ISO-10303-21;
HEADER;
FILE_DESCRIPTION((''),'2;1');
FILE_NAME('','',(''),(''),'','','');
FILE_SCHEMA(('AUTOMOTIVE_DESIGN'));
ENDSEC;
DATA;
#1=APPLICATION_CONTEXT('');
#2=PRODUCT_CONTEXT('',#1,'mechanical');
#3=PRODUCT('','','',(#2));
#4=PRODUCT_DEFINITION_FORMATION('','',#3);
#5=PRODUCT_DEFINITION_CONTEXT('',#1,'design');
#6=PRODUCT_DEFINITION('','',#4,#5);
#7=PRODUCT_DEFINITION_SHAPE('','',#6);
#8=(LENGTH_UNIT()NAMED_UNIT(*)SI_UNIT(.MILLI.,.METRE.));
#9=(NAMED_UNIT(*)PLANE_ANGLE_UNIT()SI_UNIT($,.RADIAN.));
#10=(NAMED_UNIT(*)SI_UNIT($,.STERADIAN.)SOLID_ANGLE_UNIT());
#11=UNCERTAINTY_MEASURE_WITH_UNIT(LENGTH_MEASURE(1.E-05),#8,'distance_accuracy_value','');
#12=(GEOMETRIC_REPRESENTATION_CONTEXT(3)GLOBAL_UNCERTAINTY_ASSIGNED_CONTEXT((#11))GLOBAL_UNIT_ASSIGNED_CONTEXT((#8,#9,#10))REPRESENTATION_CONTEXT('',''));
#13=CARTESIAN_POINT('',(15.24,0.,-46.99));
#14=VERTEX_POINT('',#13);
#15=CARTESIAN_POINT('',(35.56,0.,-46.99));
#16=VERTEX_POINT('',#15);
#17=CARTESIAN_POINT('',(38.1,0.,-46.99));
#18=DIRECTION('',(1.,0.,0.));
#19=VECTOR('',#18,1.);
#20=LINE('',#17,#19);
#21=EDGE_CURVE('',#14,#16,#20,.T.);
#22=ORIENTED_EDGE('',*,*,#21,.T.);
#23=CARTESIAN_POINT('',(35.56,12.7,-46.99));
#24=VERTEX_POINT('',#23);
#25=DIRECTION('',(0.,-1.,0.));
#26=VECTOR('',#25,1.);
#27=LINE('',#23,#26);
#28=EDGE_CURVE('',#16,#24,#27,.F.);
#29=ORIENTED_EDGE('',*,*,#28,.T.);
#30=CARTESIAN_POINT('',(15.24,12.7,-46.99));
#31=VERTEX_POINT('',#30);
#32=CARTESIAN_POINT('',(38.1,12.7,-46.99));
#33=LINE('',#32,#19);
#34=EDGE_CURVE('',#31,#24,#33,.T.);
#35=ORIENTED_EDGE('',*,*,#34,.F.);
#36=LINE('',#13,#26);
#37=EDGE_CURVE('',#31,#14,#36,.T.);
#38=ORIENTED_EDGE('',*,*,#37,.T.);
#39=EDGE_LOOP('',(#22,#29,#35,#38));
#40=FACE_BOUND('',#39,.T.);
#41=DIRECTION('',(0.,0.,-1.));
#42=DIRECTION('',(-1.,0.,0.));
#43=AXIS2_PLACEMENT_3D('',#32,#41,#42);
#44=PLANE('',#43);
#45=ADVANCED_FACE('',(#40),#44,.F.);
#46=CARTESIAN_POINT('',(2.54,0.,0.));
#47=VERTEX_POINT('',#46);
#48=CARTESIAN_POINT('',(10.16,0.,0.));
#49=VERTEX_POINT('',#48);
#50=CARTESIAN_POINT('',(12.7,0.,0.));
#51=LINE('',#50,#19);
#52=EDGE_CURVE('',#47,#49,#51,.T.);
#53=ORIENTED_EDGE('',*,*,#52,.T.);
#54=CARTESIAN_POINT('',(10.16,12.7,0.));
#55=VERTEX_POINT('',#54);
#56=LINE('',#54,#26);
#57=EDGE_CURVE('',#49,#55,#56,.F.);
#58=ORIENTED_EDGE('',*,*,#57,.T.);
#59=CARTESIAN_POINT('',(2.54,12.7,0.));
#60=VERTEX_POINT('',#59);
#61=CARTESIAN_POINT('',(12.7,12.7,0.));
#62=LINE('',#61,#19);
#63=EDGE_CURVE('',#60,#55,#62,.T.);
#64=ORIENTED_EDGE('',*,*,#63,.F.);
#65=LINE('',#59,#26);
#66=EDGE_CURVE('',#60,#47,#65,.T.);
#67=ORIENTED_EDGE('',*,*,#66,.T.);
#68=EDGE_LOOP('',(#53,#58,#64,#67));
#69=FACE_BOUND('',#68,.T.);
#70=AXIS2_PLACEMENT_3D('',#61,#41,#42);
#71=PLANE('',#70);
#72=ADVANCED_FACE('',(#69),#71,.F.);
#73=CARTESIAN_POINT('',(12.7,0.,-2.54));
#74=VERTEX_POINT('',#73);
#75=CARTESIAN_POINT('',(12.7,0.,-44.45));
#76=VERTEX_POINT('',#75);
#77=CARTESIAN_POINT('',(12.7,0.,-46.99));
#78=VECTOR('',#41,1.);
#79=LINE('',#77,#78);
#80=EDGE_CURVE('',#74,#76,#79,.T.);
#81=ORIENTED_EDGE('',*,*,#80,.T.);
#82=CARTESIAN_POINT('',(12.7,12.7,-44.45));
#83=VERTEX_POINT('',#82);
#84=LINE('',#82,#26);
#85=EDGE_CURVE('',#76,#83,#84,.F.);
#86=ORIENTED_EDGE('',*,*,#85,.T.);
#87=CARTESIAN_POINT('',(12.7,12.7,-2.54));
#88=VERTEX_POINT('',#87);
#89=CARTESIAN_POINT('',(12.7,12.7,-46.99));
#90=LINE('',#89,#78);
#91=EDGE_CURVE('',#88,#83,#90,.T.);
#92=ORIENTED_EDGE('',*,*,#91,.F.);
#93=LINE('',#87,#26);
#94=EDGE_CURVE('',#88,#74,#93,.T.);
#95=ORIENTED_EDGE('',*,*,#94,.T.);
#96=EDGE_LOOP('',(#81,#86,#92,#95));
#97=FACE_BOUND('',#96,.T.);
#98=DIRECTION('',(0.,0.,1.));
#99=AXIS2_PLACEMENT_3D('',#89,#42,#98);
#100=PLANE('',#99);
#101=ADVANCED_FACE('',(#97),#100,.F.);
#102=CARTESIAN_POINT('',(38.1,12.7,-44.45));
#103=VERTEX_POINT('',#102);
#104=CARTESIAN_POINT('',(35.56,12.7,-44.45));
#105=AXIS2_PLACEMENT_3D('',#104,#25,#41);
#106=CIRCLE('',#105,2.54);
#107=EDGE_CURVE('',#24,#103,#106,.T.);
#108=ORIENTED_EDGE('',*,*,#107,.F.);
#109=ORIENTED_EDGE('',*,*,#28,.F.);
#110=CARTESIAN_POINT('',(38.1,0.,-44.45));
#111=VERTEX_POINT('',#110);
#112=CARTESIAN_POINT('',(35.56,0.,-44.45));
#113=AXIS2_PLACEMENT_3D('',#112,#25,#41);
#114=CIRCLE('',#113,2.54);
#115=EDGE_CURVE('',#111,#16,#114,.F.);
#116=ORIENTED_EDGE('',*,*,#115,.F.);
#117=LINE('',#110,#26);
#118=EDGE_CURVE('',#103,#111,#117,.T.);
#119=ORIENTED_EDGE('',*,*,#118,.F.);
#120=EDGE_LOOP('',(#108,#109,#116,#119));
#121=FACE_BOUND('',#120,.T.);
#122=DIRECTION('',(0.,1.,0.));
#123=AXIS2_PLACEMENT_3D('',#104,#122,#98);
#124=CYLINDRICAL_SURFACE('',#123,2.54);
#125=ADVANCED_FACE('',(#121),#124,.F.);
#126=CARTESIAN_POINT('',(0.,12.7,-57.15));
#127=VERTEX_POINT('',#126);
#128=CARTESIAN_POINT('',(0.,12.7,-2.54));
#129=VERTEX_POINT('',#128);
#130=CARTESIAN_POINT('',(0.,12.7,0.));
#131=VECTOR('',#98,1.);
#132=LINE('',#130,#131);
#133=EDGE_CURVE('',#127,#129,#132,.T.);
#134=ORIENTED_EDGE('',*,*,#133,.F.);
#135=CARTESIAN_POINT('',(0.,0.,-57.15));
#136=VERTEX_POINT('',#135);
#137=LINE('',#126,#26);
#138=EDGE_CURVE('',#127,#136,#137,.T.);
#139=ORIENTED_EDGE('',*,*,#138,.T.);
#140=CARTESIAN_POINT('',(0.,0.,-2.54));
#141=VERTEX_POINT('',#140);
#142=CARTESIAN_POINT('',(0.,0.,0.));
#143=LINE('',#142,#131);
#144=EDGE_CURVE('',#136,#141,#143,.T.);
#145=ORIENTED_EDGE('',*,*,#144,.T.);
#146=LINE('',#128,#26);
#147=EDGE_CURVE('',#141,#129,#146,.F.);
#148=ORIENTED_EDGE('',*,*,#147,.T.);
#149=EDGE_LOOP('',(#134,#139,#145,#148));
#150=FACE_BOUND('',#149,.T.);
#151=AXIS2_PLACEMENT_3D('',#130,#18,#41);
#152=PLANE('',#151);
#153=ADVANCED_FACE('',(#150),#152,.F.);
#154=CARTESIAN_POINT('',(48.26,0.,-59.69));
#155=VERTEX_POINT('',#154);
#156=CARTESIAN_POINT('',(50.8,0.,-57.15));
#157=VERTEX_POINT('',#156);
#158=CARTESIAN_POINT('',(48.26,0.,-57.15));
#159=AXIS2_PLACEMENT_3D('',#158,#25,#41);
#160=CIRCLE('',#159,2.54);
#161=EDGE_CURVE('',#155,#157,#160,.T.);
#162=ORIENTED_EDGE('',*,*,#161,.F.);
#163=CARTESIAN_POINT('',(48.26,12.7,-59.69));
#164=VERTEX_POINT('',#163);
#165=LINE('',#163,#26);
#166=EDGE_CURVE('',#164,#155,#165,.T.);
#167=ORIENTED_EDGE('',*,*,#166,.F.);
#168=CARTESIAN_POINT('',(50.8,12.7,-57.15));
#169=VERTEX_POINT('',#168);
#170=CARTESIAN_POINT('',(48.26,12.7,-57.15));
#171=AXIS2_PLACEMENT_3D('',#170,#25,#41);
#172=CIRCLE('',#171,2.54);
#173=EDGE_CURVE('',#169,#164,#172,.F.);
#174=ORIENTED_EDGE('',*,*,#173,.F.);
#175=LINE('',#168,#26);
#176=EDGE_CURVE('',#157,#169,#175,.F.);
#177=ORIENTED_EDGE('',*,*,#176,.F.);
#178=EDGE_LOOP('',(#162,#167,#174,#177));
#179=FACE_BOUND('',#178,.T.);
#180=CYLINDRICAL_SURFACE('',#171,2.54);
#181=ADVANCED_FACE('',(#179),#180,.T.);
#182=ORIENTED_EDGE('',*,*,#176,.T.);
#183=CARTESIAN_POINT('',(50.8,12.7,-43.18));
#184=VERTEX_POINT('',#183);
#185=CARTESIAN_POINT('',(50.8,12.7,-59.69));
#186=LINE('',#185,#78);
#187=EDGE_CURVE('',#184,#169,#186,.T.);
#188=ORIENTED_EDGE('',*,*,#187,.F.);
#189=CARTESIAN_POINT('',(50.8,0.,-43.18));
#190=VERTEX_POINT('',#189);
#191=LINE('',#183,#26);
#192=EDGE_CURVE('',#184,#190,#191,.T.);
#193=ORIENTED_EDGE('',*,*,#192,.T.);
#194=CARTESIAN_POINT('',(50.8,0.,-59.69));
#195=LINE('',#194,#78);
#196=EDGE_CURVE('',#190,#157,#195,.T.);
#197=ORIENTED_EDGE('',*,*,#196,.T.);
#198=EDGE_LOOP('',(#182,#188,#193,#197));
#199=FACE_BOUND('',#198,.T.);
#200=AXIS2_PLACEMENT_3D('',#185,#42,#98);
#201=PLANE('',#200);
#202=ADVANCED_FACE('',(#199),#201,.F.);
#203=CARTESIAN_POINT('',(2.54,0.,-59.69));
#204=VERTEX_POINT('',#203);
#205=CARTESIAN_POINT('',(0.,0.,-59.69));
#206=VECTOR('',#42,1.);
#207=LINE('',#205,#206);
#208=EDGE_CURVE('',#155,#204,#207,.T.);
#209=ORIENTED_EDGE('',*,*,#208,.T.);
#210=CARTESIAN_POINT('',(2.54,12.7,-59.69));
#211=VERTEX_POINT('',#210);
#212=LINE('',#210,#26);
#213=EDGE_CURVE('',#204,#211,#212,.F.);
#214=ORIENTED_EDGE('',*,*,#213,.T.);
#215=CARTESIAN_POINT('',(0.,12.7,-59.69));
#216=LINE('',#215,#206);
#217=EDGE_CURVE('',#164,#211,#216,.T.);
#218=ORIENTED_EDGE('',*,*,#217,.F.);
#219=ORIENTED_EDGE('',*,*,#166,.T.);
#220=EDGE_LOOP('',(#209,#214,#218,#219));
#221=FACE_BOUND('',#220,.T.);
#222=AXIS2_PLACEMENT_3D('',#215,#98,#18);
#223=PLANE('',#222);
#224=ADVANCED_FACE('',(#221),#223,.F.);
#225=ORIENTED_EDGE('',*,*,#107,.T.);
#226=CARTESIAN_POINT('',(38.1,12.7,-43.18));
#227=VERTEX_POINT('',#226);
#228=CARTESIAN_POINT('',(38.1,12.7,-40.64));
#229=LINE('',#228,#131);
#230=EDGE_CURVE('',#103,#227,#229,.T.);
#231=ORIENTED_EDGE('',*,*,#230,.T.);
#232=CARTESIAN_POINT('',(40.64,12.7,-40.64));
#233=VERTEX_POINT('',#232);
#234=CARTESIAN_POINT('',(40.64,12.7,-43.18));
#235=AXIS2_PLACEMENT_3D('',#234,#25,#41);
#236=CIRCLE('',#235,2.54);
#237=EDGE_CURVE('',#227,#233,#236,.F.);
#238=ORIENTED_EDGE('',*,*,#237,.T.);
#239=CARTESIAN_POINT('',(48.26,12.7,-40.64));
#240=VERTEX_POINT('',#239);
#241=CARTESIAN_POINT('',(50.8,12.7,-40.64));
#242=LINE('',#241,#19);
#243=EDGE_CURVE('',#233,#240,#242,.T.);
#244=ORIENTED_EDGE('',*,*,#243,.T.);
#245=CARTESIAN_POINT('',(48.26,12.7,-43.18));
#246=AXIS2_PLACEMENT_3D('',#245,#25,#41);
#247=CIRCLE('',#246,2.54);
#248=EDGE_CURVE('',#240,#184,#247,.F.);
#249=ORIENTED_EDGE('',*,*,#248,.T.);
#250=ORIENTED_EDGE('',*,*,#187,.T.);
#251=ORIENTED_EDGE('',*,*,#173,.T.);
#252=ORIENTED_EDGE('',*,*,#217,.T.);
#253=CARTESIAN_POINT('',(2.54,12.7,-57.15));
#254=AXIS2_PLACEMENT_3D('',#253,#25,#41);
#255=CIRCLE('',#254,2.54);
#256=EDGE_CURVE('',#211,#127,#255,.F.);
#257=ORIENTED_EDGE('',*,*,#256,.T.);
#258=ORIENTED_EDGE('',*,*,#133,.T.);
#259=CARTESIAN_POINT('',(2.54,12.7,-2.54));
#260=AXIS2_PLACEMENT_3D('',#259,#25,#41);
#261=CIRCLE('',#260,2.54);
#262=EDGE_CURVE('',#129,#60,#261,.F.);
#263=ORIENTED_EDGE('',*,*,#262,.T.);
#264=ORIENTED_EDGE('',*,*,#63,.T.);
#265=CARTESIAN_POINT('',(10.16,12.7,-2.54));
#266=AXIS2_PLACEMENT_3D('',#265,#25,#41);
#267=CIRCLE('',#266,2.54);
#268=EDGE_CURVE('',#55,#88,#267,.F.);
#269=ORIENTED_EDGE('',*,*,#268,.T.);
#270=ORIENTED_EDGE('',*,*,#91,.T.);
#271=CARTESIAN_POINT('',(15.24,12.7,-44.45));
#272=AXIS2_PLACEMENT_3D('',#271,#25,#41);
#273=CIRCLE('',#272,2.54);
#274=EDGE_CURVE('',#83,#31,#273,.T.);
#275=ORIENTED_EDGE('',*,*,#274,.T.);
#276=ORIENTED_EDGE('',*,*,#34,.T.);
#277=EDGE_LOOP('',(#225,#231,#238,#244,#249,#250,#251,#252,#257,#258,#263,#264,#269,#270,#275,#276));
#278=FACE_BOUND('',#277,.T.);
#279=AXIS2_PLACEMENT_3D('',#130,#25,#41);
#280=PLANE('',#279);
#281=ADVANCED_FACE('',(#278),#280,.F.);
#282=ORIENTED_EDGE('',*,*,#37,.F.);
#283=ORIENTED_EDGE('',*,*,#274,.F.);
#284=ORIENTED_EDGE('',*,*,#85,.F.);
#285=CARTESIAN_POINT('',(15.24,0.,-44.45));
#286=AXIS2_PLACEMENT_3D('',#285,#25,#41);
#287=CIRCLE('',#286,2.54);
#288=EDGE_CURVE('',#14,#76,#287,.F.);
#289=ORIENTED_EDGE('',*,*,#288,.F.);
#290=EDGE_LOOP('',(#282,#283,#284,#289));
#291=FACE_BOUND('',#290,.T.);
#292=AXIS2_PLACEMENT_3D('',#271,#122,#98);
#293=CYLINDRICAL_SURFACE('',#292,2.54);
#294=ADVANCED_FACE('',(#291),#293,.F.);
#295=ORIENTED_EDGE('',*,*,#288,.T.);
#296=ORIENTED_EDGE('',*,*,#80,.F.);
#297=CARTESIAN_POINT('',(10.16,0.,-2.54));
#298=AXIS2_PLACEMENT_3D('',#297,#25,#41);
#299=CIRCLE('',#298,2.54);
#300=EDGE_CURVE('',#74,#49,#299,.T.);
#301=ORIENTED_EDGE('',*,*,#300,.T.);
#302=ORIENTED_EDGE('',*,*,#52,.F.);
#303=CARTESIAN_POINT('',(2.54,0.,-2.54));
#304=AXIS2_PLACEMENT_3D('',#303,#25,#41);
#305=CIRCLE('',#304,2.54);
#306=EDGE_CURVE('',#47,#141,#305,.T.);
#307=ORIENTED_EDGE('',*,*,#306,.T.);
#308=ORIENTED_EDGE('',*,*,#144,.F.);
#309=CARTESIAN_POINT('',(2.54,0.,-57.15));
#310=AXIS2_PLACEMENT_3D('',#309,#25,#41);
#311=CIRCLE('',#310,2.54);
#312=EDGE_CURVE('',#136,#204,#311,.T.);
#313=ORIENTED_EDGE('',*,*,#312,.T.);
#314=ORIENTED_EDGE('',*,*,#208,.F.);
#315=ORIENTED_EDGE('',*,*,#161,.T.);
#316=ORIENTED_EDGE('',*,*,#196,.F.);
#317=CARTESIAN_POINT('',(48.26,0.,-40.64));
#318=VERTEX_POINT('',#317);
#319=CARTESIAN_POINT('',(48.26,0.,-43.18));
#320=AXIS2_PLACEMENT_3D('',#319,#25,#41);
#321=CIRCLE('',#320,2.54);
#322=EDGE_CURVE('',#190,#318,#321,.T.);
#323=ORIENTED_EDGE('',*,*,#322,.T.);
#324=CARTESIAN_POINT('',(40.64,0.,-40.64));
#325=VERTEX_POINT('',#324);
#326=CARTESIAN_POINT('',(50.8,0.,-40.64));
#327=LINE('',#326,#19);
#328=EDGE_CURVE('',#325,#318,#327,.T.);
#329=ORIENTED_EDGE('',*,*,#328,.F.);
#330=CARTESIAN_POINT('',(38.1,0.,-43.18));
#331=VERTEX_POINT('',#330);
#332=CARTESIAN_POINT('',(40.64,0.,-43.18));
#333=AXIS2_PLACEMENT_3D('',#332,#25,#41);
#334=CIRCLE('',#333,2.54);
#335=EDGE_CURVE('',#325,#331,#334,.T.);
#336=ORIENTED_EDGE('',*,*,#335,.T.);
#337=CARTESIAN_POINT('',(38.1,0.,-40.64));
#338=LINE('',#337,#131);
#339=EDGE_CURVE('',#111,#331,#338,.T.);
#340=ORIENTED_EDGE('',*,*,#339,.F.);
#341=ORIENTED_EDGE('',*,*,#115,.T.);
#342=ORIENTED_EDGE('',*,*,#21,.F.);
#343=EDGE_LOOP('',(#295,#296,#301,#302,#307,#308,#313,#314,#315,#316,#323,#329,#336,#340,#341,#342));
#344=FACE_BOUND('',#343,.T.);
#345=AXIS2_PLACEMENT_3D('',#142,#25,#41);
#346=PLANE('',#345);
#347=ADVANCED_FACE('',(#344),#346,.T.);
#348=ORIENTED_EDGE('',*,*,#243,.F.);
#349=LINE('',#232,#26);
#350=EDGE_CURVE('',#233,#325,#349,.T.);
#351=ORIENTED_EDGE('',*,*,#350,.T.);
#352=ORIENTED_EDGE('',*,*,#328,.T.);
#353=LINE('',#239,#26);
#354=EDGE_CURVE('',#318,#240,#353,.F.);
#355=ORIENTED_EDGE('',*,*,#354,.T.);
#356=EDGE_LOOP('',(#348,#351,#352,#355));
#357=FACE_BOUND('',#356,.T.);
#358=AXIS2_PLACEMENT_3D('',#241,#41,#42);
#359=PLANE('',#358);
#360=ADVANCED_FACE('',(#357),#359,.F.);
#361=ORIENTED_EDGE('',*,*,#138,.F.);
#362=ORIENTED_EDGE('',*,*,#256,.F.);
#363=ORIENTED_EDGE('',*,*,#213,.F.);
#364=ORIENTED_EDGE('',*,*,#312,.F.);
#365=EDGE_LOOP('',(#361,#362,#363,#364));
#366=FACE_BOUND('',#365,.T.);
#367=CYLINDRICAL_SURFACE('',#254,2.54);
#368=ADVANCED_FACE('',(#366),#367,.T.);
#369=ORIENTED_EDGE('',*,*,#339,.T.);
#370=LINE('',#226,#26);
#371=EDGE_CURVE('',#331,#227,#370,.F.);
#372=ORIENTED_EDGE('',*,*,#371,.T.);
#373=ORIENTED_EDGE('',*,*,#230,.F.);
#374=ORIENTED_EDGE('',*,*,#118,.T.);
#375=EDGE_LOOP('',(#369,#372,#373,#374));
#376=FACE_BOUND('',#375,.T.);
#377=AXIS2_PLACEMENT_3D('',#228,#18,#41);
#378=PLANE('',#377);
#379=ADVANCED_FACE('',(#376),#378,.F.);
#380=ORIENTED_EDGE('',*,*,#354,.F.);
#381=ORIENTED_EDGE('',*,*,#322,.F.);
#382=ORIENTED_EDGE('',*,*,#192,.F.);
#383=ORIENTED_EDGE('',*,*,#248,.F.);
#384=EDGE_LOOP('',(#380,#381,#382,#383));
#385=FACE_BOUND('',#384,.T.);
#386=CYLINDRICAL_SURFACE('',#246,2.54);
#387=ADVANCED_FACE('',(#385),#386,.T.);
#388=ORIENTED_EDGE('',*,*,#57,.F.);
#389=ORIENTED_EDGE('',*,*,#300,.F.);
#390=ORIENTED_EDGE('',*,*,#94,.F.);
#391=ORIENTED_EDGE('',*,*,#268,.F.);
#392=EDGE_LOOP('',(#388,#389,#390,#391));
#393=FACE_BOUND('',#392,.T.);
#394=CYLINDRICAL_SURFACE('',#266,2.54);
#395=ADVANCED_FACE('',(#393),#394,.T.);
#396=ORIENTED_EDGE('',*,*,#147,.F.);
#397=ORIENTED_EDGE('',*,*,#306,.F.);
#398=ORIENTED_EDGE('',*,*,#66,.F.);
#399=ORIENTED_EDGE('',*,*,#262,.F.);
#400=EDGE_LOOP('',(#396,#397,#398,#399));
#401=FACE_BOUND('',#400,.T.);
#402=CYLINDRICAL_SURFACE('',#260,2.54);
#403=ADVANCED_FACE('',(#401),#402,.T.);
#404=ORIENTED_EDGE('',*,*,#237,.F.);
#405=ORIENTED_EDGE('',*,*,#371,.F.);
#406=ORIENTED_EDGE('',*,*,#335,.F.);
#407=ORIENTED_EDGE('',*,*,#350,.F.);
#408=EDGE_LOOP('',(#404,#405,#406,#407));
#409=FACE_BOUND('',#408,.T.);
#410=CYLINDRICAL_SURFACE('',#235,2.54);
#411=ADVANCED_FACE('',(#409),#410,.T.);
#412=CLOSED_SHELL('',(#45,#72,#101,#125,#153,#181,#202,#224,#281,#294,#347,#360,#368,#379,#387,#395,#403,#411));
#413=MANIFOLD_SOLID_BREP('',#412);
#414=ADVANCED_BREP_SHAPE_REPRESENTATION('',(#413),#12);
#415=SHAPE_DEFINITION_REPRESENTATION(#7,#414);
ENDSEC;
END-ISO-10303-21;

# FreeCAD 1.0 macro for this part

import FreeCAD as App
import Part
import Sketcher
from FreeCAD import Vector
Q = App.Units.Quantity


def edges_at(feature, points):
    """Names of the edges that pass closest to the given points."""
    edges = feature.Shape.Edges
    near = lambda p: min(range(len(edges)), key=lambda i: edges[i].distToShape(Part.Vertex(*p))[0])
    return sorted({f"Edge{near(p) + 1}" for p in points})

doc = App.newDocument("Part")
body = doc.addObject("PartDesign::Body", "Body")

# Sketch on XZ plane
sketch1 = body.newObject("Sketcher::SketchObject", "Sketch")
sketch1.AttachmentSupport = (doc.getObject("XZ_Plane"), [""])
sketch1.MapMode = "FlatFace"
sketch1.addGeometry([
    Part.LineSegment(Vector(0, -59.69, 0), Vector(0, 0, 0)),  # 0
    Part.LineSegment(Vector(0, 0, 0), Vector(12.7, 0, 0)),  # 1
    Part.LineSegment(Vector(12.7, 0, 0), Vector(12.7, -46.99, 0)),  # 2
    Part.LineSegment(Vector(12.7, -46.99, 0), Vector(38.1, -46.99, 0)),  # 3
    Part.LineSegment(Vector(38.1, -46.99, 0), Vector(38.1, -40.64, 0)),  # 4
    Part.LineSegment(Vector(38.1, -40.64, 0), Vector(50.8, -40.64, 0)),  # 5
    Part.LineSegment(Vector(50.8, -40.64, 0), Vector(50.8, -59.69, 0)),  # 6
    Part.LineSegment(Vector(50.8, -59.69, 0), Vector(0, -59.69, 0)),  # 7
], False)
sketch1.addConstraint([
    Sketcher.Constraint("Coincident", 0, 2, 1, 1),
    Sketcher.Constraint("Coincident", 1, 2, 2, 1),
    Sketcher.Constraint("Coincident", 2, 2, 3, 1),
    Sketcher.Constraint("Coincident", 3, 2, 4, 1),
    Sketcher.Constraint("Coincident", 4, 2, 5, 1),
    Sketcher.Constraint("Coincident", 5, 2, 6, 1),
    Sketcher.Constraint("Coincident", 6, 2, 7, 1),
    Sketcher.Constraint("Coincident", 7, 2, 0, 1),
    Sketcher.Constraint("Vertical", 0),
    Sketcher.Constraint("Horizontal", 1),
    Sketcher.Constraint("Vertical", 2),
    Sketcher.Constraint("Horizontal", 3),
    Sketcher.Constraint("Vertical", 4),
    Sketcher.Constraint("Horizontal", 5),
    Sketcher.Constraint("Vertical", 6),
    Sketcher.Constraint("Horizontal", 7),
    Sketcher.Constraint("Coincident", 0, 2, -1, 1),
    Sketcher.Constraint("Equal", 1, 5),
    Sketcher.Constraint("DistanceX", 3, 1, 3, 2, Q("1 in")),
    Sketcher.Constraint("DistanceX", 7, 2, 7, 1, Q("2 in")),
    Sketcher.Constraint("DistanceY", 0, 1, 0, 2, Q("2.35 in")),
    Sketcher.Constraint("DistanceY", 2, 2, 2, 1, Q("1.85 in")),
    Sketcher.Constraint("DistanceY", 4, 1, 4, 2, Q("0.25 in")),
])
pad1 = body.newObject("PartDesign::Pad", "Pad")
pad1.Profile = sketch1
pad1.Length = Q("0.5 in")
pad1.Reversed = True
doc.recompute()

fillet = body.newObject("PartDesign::Fillet", "Fillet")
fillet.Base = (pad1, edges_at(pad1, [
    (0, 6.35, 0),
    (0, 6.35, -59.69),
    (50.8, 6.35, -59.69),
    (50.8, 6.35, -40.64),
    (38.1, 6.35, -40.64),
    (38.1, 6.35, -46.99),
    (12.7, 6.35, -46.99),
    (12.7, 6.35, 0),
]))
fillet.Radius = Q("0.1 in")

doc.recompute()
